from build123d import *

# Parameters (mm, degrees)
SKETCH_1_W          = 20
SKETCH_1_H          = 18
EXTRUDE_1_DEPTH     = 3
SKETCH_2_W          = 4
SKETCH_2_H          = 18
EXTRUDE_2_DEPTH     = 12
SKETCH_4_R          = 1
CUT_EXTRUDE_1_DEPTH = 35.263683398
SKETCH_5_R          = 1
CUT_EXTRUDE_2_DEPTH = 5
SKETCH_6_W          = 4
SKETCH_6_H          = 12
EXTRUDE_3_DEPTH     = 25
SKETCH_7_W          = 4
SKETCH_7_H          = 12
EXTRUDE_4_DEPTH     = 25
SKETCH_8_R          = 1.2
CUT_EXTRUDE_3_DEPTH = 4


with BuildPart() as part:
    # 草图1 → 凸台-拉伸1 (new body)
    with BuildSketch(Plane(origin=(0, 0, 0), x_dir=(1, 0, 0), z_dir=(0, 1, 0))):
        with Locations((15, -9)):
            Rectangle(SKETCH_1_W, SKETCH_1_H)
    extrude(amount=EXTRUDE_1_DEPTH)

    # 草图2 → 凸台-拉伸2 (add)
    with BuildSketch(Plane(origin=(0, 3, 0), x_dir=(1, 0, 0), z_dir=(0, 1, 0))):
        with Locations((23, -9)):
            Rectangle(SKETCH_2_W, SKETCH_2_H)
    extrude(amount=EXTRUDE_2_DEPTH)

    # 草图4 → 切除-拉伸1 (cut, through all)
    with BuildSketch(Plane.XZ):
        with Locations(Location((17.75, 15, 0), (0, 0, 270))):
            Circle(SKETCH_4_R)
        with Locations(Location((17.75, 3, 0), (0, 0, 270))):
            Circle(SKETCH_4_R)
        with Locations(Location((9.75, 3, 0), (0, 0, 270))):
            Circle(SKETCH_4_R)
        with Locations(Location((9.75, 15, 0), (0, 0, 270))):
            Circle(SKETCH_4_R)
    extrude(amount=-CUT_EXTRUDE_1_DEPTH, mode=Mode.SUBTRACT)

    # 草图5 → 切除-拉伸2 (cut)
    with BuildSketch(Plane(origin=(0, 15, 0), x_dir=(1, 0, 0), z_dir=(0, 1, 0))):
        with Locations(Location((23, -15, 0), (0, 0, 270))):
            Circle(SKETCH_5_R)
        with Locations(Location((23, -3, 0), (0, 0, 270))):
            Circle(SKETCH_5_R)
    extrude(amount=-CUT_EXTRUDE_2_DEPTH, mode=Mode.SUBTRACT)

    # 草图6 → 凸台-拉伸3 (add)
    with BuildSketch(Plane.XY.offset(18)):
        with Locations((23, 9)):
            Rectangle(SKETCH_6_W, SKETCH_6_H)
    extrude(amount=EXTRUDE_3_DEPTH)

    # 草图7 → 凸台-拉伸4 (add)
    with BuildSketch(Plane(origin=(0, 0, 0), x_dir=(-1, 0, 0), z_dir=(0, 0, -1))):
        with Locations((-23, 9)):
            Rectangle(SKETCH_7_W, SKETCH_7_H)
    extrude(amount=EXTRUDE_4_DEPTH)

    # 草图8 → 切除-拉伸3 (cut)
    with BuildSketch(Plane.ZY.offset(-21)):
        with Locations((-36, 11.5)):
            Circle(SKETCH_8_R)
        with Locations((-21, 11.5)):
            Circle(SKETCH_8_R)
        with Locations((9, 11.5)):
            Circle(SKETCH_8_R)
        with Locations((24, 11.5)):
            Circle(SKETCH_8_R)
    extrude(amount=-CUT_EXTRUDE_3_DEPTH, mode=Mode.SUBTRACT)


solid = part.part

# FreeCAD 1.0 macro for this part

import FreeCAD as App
import Part
import Sketcher
from FreeCAD import Vector

doc = App.newDocument("Part")
body = doc.addObject("PartDesign::Body", "Body")

sketch1 = doc.addObject("Sketcher::SketchObject", "Sketch")
body.addObject(sketch1)
sketch1.AttachmentSupport = (doc.XZ_Plane, [""])
sketch1.MapMode = "FlatFace"
sketch1.addGeometry(Part.LineSegment(Vector(5, 0, 0), Vector(5, 18, 0)), False)
sketch1.addGeometry(Part.LineSegment(Vector(5, 18, 0), Vector(25, 18, 0)), False)
sketch1.addGeometry(Part.LineSegment(Vector(25, 18, 0), Vector(25, 0, 0)), False)
sketch1.addGeometry(Part.LineSegment(Vector(25, 0, 0), Vector(5, 0, 0)), False)
sketch1.addConstraint(Sketcher.Constraint("Coincident", 0, 2, 1, 1))
sketch1.addConstraint(Sketcher.Constraint("Coincident", 1, 2, 2, 1))
sketch1.addConstraint(Sketcher.Constraint("Coincident", 2, 2, 3, 1))
sketch1.addConstraint(Sketcher.Constraint("Coincident", 3, 2, 0, 1))
sketch1.addConstraint(Sketcher.Constraint("Vertical", 0))
sketch1.addConstraint(Sketcher.Constraint("Horizontal", 1))
sketch1.addConstraint(Sketcher.Constraint("Vertical", 2))
sketch1.addConstraint(Sketcher.Constraint("Horizontal", 3))
sketch1.addConstraint(Sketcher.Constraint("PointOnObject", 2, 2, -1))
sketch1.addConstraint(Sketcher.Constraint("DistanceX", 1, 1, 1, 2, 20.0))
sketch1.addConstraint(Sketcher.Constraint("DistanceY", 0, 1, 0, 2, 18.0))
sketch1.addConstraint(Sketcher.Constraint("DistanceX", -1, 1, 0, 2, 5.0))
pad1 = doc.addObject("PartDesign::Pad", "Pad")
body.addObject(pad1)
pad1.Profile = sketch1
pad1.Length = 3
pad1.Reversed = True

sketch2 = doc.addObject("Sketcher::SketchObject", "Sketch001")
body.addObject(sketch2)
sketch2.AttachmentSupport = (doc.XZ_Plane, [""])
sketch2.MapMode = "FlatFace"
sketch2.AttachmentOffset = App.Placement(Vector(0, 0, -3), App.Rotation())
sketch2.addGeometry(Part.LineSegment(Vector(21, 0, 0), Vector(21, 18, 0)), False)
sketch2.addGeometry(Part.LineSegment(Vector(21, 18, 0), Vector(25, 18, 0)), False)
sketch2.addGeometry(Part.LineSegment(Vector(25, 18, 0), Vector(25, 0, 0)), False)
sketch2.addGeometry(Part.LineSegment(Vector(25, 0, 0), Vector(21, 0, 0)), False)
sketch2.addConstraint(Sketcher.Constraint("Coincident", 0, 2, 1, 1))
sketch2.addConstraint(Sketcher.Constraint("Coincident", 1, 2, 2, 1))
sketch2.addConstraint(Sketcher.Constraint("Coincident", 2, 2, 3, 1))
sketch2.addConstraint(Sketcher.Constraint("Coincident", 3, 2, 0, 1))
sketch2.addConstraint(Sketcher.Constraint("Vertical", 0))
sketch2.addConstraint(Sketcher.Constraint("Horizontal", 1))
sketch2.addConstraint(Sketcher.Constraint("Vertical", 2))
sketch2.addConstraint(Sketcher.Constraint("Horizontal", 3))
sketch2.addConstraint(Sketcher.Constraint("PointOnObject", 2, 2, -1))
sketch2.addConstraint(Sketcher.Constraint("DistanceX", 1, 1, 1, 2, 4.0))
sketch2.addConstraint(Sketcher.Constraint("DistanceY", 0, 1, 0, 2, 18.0))
sketch2.addConstraint(Sketcher.Constraint("DistanceX", -1, 1, 0, 2, 21.0))
pad2 = doc.addObject("PartDesign::Pad", "Pad001")
body.addObject(pad2)
pad2.Profile = sketch2
pad2.Length = 12
pad2.Reversed = True

sketch3 = doc.addObject("Sketcher::SketchObject", "Sketch002")
body.addObject(sketch3)
sketch3.AttachmentSupport = (doc.XZ_Plane, [""])
sketch3.MapMode = "FlatFace"
sketch3.addGeometry(Part.Circle(Vector(17.8, 15, 0), Vector(0, 0, 1), 1), False)
sketch3.addGeometry(Part.Circle(Vector(17.8, 3, 0), Vector(0, 0, 1), 1), False)
sketch3.addGeometry(Part.Circle(Vector(9.8, 3, 0), Vector(0, 0, 1), 1), False)
sketch3.addGeometry(Part.Circle(Vector(9.8, 15, 0), Vector(0, 0, 1), 1), False)
sketch3.addConstraint(Sketcher.Constraint("Equal", 0, 1))
sketch3.addConstraint(Sketcher.Constraint("Equal", 1, 2))
sketch3.addConstraint(Sketcher.Constraint("Equal", 2, 3))
sketch3.addConstraint(Sketcher.Constraint("Horizontal", 1, 3, 2, 3))
sketch3.addConstraint(Sketcher.Constraint("Horizontal", 0, 3, 3, 3))
sketch3.addConstraint(Sketcher.Constraint("Vertical", 0, 3, 1, 3))
sketch3.addConstraint(Sketcher.Constraint("Vertical", 2, 3, 3, 3))
sketch3.addConstraint(Sketcher.Constraint("Diameter", 0, 2.0))
sketch3.addConstraint(Sketcher.Constraint("DistanceY", -1, 1, 0, 3, 15.0))
sketch3.addConstraint(Sketcher.Constraint("DistanceY", -1, 1, 1, 3, 3.0))
sketch3.addConstraint(Sketcher.Constraint("DistanceX", 2, 3, 1, 3, 8.0))
sketch3.addConstraint(Sketcher.Constraint("DistanceX", -1, 1, 0, 3, 17.75))
pocket1 = doc.addObject("PartDesign::Pocket", "Pocket")
body.addObject(pocket1)
pocket1.Profile = sketch3
pocket1.Type = "ThroughAll"

sketch4 = doc.addObject("Sketcher::SketchObject", "Sketch003")
body.addObject(sketch4)
sketch4.AttachmentSupport = (doc.XZ_Plane, [""])
sketch4.MapMode = "FlatFace"
sketch4.AttachmentOffset = App.Placement(Vector(0, 0, -15), App.Rotation())
sketch4.addGeometry(Part.Circle(Vector(23, 15, 0), Vector(0, 0, 1), 1), False)
sketch4.addGeometry(Part.Circle(Vector(23, 3, 0), Vector(0, 0, 1), 1), False)
sketch4.addConstraint(Sketcher.Constraint("Equal", 0, 1))
sketch4.addConstraint(Sketcher.Constraint("Vertical", 0, 3, 1, 3))
sketch4.addConstraint(Sketcher.Constraint("Diameter", 0, 2.0))
sketch4.addConstraint(Sketcher.Constraint("DistanceX", -1, 1, 0, 3, 23.0))
sketch4.addConstraint(Sketcher.Constraint("DistanceY", -1, 1, 0, 3, 15.0))
sketch4.addConstraint(Sketcher.Constraint("DistanceY", -1, 1, 1, 3, 3.0))
pocket2 = doc.addObject("PartDesign::Pocket", "Pocket001")
body.addObject(pocket2)
pocket2.Profile = sketch4
pocket2.Length = 5
pocket2.Reversed = True

sketch5 = doc.addObject("Sketcher::SketchObject", "Sketch004")
body.addObject(sketch5)
sketch5.AttachmentSupport = (doc.XY_Plane, [""])
sketch5.MapMode = "FlatFace"
sketch5.AttachmentOffset = App.Placement(Vector(0, 0, 18), App.Rotation())
sketch5.addGeometry(Part.LineSegment(Vector(21, 15, 0), Vector(21, 3, 0)), False)
sketch5.addGeometry(Part.LineSegment(Vector(21, 3, 0), Vector(25, 3, 0)), False)
sketch5.addGeometry(Part.LineSegment(Vector(25, 3, 0), Vector(25, 15, 0)), False)
sketch5.addGeometry(Part.LineSegment(Vector(25, 15, 0), Vector(21, 15, 0)), False)
sketch5.addConstraint(Sketcher.Constraint("Coincident", 0, 2, 1, 1))
sketch5.addConstraint(Sketcher.Constraint("Coincident", 1, 2, 2, 1))
sketch5.addConstraint(Sketcher.Constraint("Coincident", 2, 2, 3, 1))
sketch5.addConstraint(Sketcher.Constraint("Coincident", 3, 2, 0, 1))
sketch5.addConstraint(Sketcher.Constraint("Vertical", 0))
sketch5.addConstraint(Sketcher.Constraint("Horizontal", 1))
sketch5.addConstraint(Sketcher.Constraint("Vertical", 2))
sketch5.addConstraint(Sketcher.Constraint("Horizontal", 3))
sketch5.addConstraint(Sketcher.Constraint("DistanceX", 1, 1, 1, 2, 4.0))
sketch5.addConstraint(Sketcher.Constraint("DistanceY", 0, 2, 0, 1, 12.0))
sketch5.addConstraint(Sketcher.Constraint("DistanceX", -1, 1, 0, 2, 21.0))
sketch5.addConstraint(Sketcher.Constraint("DistanceY", -1, 1, 0, 2, 3.0))
pad3 = doc.addObject("PartDesign::Pad", "Pad002")
body.addObject(pad3)
pad3.Profile = sketch5
pad3.Length = 25

sketch6 = doc.addObject("Sketcher::SketchObject", "Sketch005")
body.addObject(sketch6)
sketch6.AttachmentSupport = (doc.XY_Plane, [""])
sketch6.MapMode = "FlatFace"
sketch6.addGeometry(Part.LineSegment(Vector(25, 15, 0), Vector(25, 3, 0)), False)
sketch6.addGeometry(Part.LineSegment(Vector(25, 3, 0), Vector(21, 3, 0)), False)
sketch6.addGeometry(Part.LineSegment(Vector(21, 3, 0), Vector(21, 15, 0)), False)
sketch6.addGeometry(Part.LineSegment(Vector(21, 15, 0), Vector(25, 15, 0)), False)
sketch6.addConstraint(Sketcher.Constraint("Coincident", 0, 2, 1, 1))
sketch6.addConstraint(Sketcher.Constraint("Coincident", 1, 2, 2, 1))
sketch6.addConstraint(Sketcher.Constraint("Coincident", 2, 2, 3, 1))
sketch6.addConstraint(Sketcher.Constraint("Coincident", 3, 2, 0, 1))
sketch6.addConstraint(Sketcher.Constraint("Vertical", 0))
sketch6.addConstraint(Sketcher.Constraint("Horizontal", 1))
sketch6.addConstraint(Sketcher.Constraint("Vertical", 2))
sketch6.addConstraint(Sketcher.Constraint("Horizontal", 3))
sketch6.addConstraint(Sketcher.Constraint("DistanceX", 1, 2, 1, 1, 4.0))
sketch6.addConstraint(Sketcher.Constraint("DistanceY", 0, 2, 0, 1, 12.0))
sketch6.addConstraint(Sketcher.Constraint("DistanceX", -1, 1, 0, 2, 25.0))
sketch6.addConstraint(Sketcher.Constraint("DistanceY", -1, 1, 0, 2, 3.0))
pad4 = doc.addObject("PartDesign::Pad", "Pad003")
body.addObject(pad4)
pad4.Profile = sketch6
pad4.Length = 25
pad4.Reversed = True

sketch7 = doc.addObject("Sketcher::SketchObject", "Sketch006")
body.addObject(sketch7)
sketch7.AttachmentSupport = (doc.YZ_Plane, [""])
sketch7.MapMode = "FlatFace"
sketch7.AttachmentOffset = App.Placement(Vector(0, 0, 21), App.Rotation())
sketch7.addGeometry(Part.Circle(Vector(11.5, -36, 0), Vector(0, 0, 1), 1.2), False)
sketch7.addGeometry(Part.Circle(Vector(11.5, -21, 0), Vector(0, 0, 1), 1.2), False)
sketch7.addGeometry(Part.Circle(Vector(11.5, 9, 0), Vector(0, 0, 1), 1.2), False)
sketch7.addGeometry(Part.Circle(Vector(11.5, 24, 0), Vector(0, 0, 1), 1.2), False)
sketch7.addConstraint(Sketcher.Constraint("Equal", 0, 1))
sketch7.addConstraint(Sketcher.Constraint("Equal", 1, 2))
sketch7.addConstraint(Sketcher.Constraint("Equal", 2, 3))
sketch7.addConstraint(Sketcher.Constraint("Vertical", 0, 3, 1, 3))
sketch7.addConstraint(Sketcher.Constraint("Vertical", 1, 3, 2, 3))
sketch7.addConstraint(Sketcher.Constraint("Vertical", 2, 3, 3, 3))
sketch7.addConstraint(Sketcher.Constraint("Diameter", 0, 2.4))
sketch7.addConstraint(Sketcher.Constraint("DistanceY", 0, 3, -1, 1, 36.0))
sketch7.addConstraint(Sketcher.Constraint("DistanceY", 1, 3, -1, 1, 21.0))
sketch7.addConstraint(Sketcher.Constraint("DistanceY", -1, 1, 2, 3, 9.0))
sketch7.addConstraint(Sketcher.Constraint("DistanceY", -1, 1, 3, 3, 24.0))
sketch7.addConstraint(Sketcher.Constraint("DistanceX", -1, 1, 0, 3, 11.5))
pocket3 = doc.addObject("PartDesign::Pocket", "Pocket002")
body.addObject(pocket3)
pocket3.Profile = sketch7
pocket3.Length = 4
pocket3.Reversed = True

doc.recompute()
